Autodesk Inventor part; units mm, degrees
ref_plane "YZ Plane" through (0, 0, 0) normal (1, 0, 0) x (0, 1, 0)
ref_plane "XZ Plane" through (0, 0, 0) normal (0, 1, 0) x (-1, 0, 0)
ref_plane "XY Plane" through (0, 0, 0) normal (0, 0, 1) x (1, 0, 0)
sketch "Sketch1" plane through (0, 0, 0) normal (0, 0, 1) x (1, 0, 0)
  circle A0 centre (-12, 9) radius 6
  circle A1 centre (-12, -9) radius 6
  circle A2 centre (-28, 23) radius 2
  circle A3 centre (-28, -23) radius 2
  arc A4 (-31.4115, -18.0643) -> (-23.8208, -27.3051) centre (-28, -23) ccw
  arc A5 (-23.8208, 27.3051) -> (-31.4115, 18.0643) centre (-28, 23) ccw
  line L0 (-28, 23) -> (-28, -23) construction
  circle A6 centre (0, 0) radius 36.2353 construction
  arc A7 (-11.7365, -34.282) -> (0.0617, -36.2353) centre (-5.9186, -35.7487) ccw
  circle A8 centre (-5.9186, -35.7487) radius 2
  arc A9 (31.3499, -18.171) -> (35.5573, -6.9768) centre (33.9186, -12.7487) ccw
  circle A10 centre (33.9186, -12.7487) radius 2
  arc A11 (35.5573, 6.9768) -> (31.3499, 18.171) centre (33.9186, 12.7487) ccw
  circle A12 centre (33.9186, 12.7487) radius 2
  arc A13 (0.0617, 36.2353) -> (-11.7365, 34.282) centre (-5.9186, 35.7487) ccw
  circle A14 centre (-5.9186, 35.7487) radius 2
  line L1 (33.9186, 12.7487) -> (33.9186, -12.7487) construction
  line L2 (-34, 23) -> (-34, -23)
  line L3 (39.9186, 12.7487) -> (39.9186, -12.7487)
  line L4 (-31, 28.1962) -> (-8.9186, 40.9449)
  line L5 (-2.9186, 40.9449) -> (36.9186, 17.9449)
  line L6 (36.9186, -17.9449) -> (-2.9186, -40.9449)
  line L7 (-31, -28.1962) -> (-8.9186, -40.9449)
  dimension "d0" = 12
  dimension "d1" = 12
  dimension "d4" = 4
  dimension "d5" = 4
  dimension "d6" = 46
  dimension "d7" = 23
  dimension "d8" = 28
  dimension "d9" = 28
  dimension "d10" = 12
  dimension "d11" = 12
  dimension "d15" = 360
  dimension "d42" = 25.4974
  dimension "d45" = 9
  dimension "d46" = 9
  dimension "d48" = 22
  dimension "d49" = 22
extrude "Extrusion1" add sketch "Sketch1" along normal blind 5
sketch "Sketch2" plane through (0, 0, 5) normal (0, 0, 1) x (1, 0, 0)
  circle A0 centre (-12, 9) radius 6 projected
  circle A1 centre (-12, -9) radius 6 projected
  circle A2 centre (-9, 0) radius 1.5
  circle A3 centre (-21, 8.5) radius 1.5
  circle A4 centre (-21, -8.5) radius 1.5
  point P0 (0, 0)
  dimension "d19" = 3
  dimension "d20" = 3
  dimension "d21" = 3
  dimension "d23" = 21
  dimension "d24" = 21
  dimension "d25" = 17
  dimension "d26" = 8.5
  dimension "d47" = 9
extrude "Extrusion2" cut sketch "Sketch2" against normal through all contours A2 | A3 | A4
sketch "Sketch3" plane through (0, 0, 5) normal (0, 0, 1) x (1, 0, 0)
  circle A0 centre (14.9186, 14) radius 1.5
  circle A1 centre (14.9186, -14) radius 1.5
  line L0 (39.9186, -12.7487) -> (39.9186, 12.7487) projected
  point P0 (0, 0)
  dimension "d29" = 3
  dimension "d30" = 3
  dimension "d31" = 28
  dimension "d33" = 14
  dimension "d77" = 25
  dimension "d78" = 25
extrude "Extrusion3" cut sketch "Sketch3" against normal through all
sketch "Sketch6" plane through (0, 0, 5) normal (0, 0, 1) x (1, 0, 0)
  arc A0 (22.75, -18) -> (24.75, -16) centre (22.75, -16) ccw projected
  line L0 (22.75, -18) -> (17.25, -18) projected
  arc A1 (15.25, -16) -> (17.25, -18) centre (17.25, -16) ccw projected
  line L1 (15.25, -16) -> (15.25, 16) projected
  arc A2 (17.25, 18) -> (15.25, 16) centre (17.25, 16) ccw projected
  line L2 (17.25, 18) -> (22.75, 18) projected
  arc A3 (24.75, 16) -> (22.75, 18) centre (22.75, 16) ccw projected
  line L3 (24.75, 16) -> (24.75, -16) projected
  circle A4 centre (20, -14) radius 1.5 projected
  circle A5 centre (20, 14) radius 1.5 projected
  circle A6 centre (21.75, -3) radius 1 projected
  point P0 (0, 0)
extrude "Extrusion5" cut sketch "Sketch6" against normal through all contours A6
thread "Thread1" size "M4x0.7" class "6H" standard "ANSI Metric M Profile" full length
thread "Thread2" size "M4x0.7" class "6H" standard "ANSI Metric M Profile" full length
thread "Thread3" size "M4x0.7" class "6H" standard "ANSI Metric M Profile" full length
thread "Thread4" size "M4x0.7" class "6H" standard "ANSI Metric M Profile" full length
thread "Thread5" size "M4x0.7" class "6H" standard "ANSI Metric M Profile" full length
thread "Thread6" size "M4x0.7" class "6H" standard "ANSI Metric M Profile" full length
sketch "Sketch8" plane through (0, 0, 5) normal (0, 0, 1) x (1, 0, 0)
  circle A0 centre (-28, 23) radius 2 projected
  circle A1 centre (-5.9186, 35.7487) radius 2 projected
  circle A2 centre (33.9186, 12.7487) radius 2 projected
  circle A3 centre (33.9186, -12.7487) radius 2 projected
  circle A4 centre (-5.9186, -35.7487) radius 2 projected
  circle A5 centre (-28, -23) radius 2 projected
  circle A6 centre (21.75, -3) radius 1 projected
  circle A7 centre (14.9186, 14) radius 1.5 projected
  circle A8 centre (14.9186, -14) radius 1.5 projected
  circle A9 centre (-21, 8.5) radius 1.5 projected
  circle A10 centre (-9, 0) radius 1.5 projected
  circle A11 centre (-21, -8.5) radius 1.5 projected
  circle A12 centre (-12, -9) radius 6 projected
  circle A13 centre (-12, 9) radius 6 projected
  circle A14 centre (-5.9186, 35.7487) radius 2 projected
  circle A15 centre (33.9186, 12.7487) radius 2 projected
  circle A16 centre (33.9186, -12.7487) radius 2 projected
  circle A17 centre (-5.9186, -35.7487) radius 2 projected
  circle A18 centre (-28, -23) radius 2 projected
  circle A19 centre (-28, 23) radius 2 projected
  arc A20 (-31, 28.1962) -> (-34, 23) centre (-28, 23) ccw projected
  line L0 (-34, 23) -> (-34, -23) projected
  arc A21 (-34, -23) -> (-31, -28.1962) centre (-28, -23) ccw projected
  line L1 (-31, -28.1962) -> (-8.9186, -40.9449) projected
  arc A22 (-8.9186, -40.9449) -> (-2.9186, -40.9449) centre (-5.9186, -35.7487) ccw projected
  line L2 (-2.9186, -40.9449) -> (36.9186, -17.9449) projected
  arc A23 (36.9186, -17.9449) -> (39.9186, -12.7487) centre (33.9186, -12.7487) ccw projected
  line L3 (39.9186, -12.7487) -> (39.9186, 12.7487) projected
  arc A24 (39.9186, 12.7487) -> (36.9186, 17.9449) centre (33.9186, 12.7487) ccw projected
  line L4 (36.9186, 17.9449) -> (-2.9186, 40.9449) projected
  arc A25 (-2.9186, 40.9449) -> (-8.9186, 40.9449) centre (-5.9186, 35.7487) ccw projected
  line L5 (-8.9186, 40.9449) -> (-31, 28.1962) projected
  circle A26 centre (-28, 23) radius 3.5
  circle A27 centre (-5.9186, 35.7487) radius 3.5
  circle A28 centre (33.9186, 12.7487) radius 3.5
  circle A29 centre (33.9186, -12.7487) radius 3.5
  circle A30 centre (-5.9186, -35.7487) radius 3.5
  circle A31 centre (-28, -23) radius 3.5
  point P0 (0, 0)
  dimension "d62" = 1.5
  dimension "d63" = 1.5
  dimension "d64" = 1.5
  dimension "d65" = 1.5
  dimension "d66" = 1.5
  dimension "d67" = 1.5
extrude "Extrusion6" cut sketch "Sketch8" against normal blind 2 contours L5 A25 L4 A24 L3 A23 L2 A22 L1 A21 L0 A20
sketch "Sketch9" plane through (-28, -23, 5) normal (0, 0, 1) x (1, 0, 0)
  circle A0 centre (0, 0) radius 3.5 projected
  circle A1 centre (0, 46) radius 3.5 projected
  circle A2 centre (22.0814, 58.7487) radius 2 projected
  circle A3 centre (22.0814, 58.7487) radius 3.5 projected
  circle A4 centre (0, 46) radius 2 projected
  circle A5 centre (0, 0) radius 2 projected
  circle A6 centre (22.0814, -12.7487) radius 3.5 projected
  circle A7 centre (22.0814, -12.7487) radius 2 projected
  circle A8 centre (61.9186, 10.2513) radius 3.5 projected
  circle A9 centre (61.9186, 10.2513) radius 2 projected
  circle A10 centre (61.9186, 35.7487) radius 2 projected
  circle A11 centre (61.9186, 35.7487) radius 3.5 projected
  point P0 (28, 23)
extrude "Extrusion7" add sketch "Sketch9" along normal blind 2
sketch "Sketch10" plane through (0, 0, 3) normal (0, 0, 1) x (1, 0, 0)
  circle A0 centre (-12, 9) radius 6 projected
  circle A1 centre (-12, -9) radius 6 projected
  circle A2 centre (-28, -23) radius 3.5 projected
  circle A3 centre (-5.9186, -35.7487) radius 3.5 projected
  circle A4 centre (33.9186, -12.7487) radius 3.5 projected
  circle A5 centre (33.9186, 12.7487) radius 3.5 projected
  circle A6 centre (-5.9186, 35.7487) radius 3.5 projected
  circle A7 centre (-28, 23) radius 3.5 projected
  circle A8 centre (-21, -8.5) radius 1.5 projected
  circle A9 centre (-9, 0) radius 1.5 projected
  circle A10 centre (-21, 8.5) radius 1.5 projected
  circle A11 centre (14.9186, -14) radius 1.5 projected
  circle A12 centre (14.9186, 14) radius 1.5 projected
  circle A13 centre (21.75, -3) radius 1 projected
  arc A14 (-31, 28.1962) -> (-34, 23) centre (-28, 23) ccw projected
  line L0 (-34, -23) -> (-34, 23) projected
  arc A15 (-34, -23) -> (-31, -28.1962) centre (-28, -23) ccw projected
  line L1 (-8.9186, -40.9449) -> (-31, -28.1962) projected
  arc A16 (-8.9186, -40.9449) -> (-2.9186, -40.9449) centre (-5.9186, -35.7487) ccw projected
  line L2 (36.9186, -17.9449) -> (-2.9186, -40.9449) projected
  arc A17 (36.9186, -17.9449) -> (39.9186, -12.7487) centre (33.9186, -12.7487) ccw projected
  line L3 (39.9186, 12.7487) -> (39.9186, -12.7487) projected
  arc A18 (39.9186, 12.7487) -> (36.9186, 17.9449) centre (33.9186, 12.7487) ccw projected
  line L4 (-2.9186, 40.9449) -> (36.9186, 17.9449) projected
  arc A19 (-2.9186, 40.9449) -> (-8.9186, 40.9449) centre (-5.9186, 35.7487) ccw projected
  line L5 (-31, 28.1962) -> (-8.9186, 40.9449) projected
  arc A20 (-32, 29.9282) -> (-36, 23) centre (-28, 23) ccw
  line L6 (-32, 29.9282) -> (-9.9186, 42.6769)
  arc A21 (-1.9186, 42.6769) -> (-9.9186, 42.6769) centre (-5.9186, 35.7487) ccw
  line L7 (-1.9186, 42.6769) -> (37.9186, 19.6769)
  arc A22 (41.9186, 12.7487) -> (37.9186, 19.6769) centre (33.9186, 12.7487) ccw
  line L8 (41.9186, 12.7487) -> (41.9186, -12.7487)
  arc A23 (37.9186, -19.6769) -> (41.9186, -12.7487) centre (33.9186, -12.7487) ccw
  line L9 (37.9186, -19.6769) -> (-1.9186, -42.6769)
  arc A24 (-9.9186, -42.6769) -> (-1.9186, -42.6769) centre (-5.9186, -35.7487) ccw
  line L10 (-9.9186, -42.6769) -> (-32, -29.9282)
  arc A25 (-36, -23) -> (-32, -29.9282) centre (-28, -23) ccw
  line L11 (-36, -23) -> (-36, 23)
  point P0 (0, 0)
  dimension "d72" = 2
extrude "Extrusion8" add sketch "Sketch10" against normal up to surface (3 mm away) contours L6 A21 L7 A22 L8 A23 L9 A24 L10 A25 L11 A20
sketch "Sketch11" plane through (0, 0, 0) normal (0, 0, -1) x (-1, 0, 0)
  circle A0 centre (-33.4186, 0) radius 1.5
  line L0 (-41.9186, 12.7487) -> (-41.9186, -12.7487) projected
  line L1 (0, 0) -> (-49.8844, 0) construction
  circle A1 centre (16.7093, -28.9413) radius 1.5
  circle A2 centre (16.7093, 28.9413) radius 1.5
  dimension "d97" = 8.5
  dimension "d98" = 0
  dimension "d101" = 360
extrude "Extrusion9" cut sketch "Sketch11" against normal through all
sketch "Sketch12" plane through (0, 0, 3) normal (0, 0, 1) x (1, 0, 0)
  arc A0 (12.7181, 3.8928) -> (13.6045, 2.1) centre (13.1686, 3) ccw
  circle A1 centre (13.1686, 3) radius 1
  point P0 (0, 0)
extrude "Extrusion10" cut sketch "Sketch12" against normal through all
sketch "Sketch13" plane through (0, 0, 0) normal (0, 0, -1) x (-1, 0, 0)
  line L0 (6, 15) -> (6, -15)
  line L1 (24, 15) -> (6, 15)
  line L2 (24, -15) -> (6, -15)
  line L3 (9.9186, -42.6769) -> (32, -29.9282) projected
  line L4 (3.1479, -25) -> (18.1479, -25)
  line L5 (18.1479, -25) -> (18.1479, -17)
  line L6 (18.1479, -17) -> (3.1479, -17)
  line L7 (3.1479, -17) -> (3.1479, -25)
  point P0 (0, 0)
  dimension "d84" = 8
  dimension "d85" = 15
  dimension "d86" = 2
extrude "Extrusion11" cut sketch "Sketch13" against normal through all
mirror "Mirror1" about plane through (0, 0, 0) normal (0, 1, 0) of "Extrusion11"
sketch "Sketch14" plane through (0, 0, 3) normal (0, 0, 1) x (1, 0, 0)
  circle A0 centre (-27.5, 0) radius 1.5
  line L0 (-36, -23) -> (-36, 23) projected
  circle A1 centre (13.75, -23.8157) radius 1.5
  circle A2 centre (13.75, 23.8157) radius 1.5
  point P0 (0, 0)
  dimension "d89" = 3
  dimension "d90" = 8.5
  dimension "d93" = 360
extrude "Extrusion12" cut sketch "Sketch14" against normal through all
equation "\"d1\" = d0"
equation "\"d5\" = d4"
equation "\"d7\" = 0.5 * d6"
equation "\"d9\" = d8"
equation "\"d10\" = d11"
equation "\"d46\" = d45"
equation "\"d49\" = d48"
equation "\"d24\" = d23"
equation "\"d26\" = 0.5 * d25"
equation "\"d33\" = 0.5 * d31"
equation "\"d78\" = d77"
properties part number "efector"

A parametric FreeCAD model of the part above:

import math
import FreeCAD as App
import Part
import Sketcher
from FreeCAD import Vector
Q = App.Units.Quantity


def add_polygon(sketch, points):
    """Adds a closed chain of lines whose ends are joined by coincident constraints."""
    first, n = sketch.GeometryCount, len(points)
    for a, b in zip(points, points[1:] + points[:1]):
        sketch.addGeometry(Part.LineSegment(App.Vector(*a, 0), App.Vector(*b, 0)), False)
    for i in range(n):
        sketch.addConstraint(Sketcher.Constraint("Coincident", first + i, 2, first + (i + 1) % n, 1))

doc = App.newDocument("Part")
body = doc.addObject("PartDesign::Body", "Body")

sketch1 = body.newObject("Sketcher::SketchObject", "Sketch")
sketch1.AttachmentSupport = (doc.getObject("XY_Plane"), [""])
sketch1.MapMode = "FlatFace"
sketch1.addGeometry([
    Part.LineSegment(Vector(-34, 23, 0), Vector(-34, -23, 0)),
    Part.ArcOfCircle(Part.Circle(Vector(-28, -23, 0), Vector(0, 0, 1), 6), math.radians(180), math.radians(240)),
    Part.LineSegment(Vector(-31, -28.2, 0), Vector(-8.9, -40.9, 0)),
    Part.ArcOfCircle(Part.Circle(Vector(-5.9, -35.7, 0), Vector(0, 0, 1), 6), math.radians(-120), math.radians(-60)),
    Part.LineSegment(Vector(-2.9, -40.9, 0), Vector(36.9, -17.9, 0)),
    Part.ArcOfCircle(Part.Circle(Vector(33.9, -12.7, 0), Vector(0, 0, 1), 6), math.radians(-60), math.radians(0)),
    Part.LineSegment(Vector(39.9, -12.7, 0), Vector(39.9, 12.7, 0)),
    Part.ArcOfCircle(Part.Circle(Vector(33.9, 12.7, 0), Vector(0, 0, 1), 6), math.radians(0), math.radians(60)),
    Part.LineSegment(Vector(36.9, 17.9, 0), Vector(-2.9, 40.9, 0)),
    Part.ArcOfCircle(Part.Circle(Vector(-5.9, 35.7, 0), Vector(0, 0, 1), 6), math.radians(60), math.radians(120)),
    Part.LineSegment(Vector(-8.9, 40.9, 0), Vector(-31, 28.2, 0)),
    Part.ArcOfCircle(Part.Circle(Vector(-28, 23, 0), Vector(0, 0, 1), 6), math.radians(120), math.radians(180)),
    Part.Circle(Vector(-28, -23, 0), Vector(0, 0, 1), 2),
    Part.Circle(Vector(-5.9, -35.7, 0), Vector(0, 0, 1), 2),
    Part.Circle(Vector(-12, -9, 0), Vector(0, 0, 1), 6),
    Part.Circle(Vector(33.9, -12.7, 0), Vector(0, 0, 1), 2),
    Part.Circle(Vector(-12, 9, 0), Vector(0, 0, 1), 6),
    Part.Circle(Vector(-28, 23, 0), Vector(0, 0, 1), 2),
    Part.Circle(Vector(-5.9, 35.7, 0), Vector(0, 0, 1), 2),
    Part.Circle(Vector(33.9, 12.7, 0), Vector(0, 0, 1), 2),
], False)
sketch1.addConstraint([
    Sketcher.Constraint("Tangent", 0, 2, 1, 1),
    Sketcher.Constraint("Tangent", 1, 2, 2, 1),
    Sketcher.Constraint("Tangent", 2, 2, 3, 1),
    Sketcher.Constraint("Tangent", 3, 2, 4, 1),
    Sketcher.Constraint("Tangent", 4, 2, 5, 1),
    Sketcher.Constraint("Tangent", 5, 2, 6, 1),
    Sketcher.Constraint("Tangent", 6, 2, 7, 1),
    Sketcher.Constraint("Tangent", 7, 2, 8, 1),
    Sketcher.Constraint("Tangent", 8, 2, 9, 1),
    Sketcher.Constraint("Tangent", 9, 2, 10, 1),
    Sketcher.Constraint("Tangent", 10, 2, 11, 1),
    Sketcher.Constraint("Tangent", 11, 2, 0, 1),
    Sketcher.Constraint("Vertical", 0),
    Sketcher.Constraint("Vertical", 6),
    Sketcher.Constraint("Coincident", 12, 3, 1, 3),
    Sketcher.Constraint("Coincident", 13, 3, 3, 3),
    Sketcher.Constraint("Coincident", 15, 3, 5, 3),
    Sketcher.Constraint("Coincident", 17, 3, 11, 3),
    Sketcher.Constraint("Coincident", 18, 3, 9, 3),
    Sketcher.Constraint("Coincident", 19, 3, 7, 3),
    Sketcher.Constraint("Equal", 1, 3),
    Sketcher.Constraint("Equal", 3, 5),
    Sketcher.Constraint("Equal", 5, 7),
    Sketcher.Constraint("Equal", 7, 9),
    Sketcher.Constraint("Equal", 9, 11),
    Sketcher.Constraint("Equal", 12, 13),
    Sketcher.Constraint("Equal", 11, 14),
    Sketcher.Constraint("Equal", 13, 15),
    Sketcher.Constraint("Equal", 14, 16),
    Sketcher.Constraint("Equal", 15, 17),
    Sketcher.Constraint("Equal", 17, 18),
    Sketcher.Constraint("Equal", 18, 19),
    Sketcher.Constraint("Symmetric", 3, 3, 9, 3, -1),
    Sketcher.Constraint("Symmetric", 14, 3, 16, 3, -1),
    Sketcher.Constraint("Parallel", 2, 8),
    Sketcher.Constraint("Parallel", 4, 10),
    Sketcher.Constraint("Horizontal", 2, 2, 3, 2),
    Sketcher.Constraint("Diameter", 12, Q("4 mm")),
    Sketcher.Constraint("Diameter", 14, Q("12 mm")),
    Sketcher.Constraint("DistanceY", 0, 2, 0, 1, Q("46 mm")),
    Sketcher.Constraint("Distance", 4, Q("46 mm")),
    Sketcher.Constraint("DistanceX", 1, 3, -1, 1, Q("28 mm")),
    Sketcher.Constraint("DistanceX", 14, 3, -1, 1, Q("12 mm")),
    Sketcher.Constraint("DistanceY", 14, 3, -1, 1, Q("9 mm")),
    Sketcher.Constraint("DistanceY", 3, 3, 5, 3, Q("23 mm")),
    Sketcher.Constraint("DistanceY", 6, 1, 6, 2, Q("25.4974 mm")),
])
pad1 = body.newObject("PartDesign::Pad", "Pad")
pad1.Profile = sketch1
pad1.Length = 5

sketch2 = body.newObject("Sketcher::SketchObject", "Sketch001")
sketch2.AttachmentSupport = (doc.getObject("XY_Plane"), [""])
sketch2.MapMode = "FlatFace"
sketch2.AttachmentOffset = App.Placement(Vector(0, 0, 5), App.Rotation())
sketch2.addGeometry([
    Part.Circle(Vector(-9, 0, 0), Vector(0, 0, 1), 1.5),
    Part.Circle(Vector(-21, 8.5, 0), Vector(0, 0, 1), 1.5),
    Part.Circle(Vector(-21, -8.5, 0), Vector(0, 0, 1), 1.5),
], False)
sketch2.addConstraint([
    Sketcher.Constraint("Equal", 0, 1),
    Sketcher.Constraint("Equal", 1, 2),
    Sketcher.Constraint("Symmetric", 1, 3, 2, 3, -1),
    Sketcher.Constraint("PointOnObject", 0, 3, -1),
    Sketcher.Constraint("Diameter", 0, Q("3 mm")),
    Sketcher.Constraint("DistanceX", 0, 3, -1, 1, Q("9 mm")),
    Sketcher.Constraint("DistanceX", 1, 3, -1, 1, Q("21 mm")),
    Sketcher.Constraint("DistanceY", 2, 3, 1, 3, Q("17 mm")),
])
pocket1 = body.newObject("PartDesign::Pocket", "Pocket")
pocket1.Profile = sketch2
pocket1.Type = "ThroughAll"

sketch3 = body.newObject("Sketcher::SketchObject", "Sketch002")
sketch3.AttachmentSupport = (doc.getObject("XY_Plane"), [""])
sketch3.MapMode = "FlatFace"
sketch3.AttachmentOffset = App.Placement(Vector(0, 0, 5), App.Rotation())
sketch3.addGeometry([
    Part.Circle(Vector(14.9, 14, 0), Vector(0, 0, 1), 1.5),
    Part.Circle(Vector(14.9, -14, 0), Vector(0, 0, 1), 1.5),
], False)
sketch3.addConstraint([
    Sketcher.Constraint("Equal", 0, 1),
    Sketcher.Constraint("Symmetric", 0, 3, 1, 3, -1),
    Sketcher.Constraint("Diameter", 0, Q("3 mm")),
    Sketcher.Constraint("DistanceY", -1, 1, 0, 3, Q("14 mm")),
    Sketcher.Constraint("DistanceX", -1, 1, 0, 3, Q("14.9186 mm")),
])
pocket2 = body.newObject("PartDesign::Pocket", "Pocket001")
pocket2.Profile = sketch3
pocket2.Type = "ThroughAll"

sketch4 = body.newObject("Sketcher::SketchObject", "Sketch003")
sketch4.AttachmentSupport = (doc.getObject("XY_Plane"), [""])
sketch4.MapMode = "FlatFace"
sketch4.AttachmentOffset = App.Placement(Vector(0, 0, 5), App.Rotation())
sketch4.addGeometry(Part.Circle(Vector(21.8, -3, 0), Vector(0, 0, 1), 1), False)
sketch4.addConstraint([
    Sketcher.Constraint("Diameter", 0, Q("2 mm")),
    Sketcher.Constraint("DistanceY", 0, 3, -1, 1, Q("3 mm")),
    Sketcher.Constraint("DistanceX", -1, 1, 0, 3, Q("21.75 mm")),
])
pocket3 = body.newObject("PartDesign::Pocket", "Pocket002")
pocket3.Profile = sketch4
pocket3.Type = "ThroughAll"

sketch5 = body.newObject("Sketcher::SketchObject", "Sketch004")
sketch5.AttachmentSupport = (doc.getObject("XY_Plane"), [""])
sketch5.MapMode = "FlatFace"
sketch5.AttachmentOffset = App.Placement(Vector(0, 0, 5), App.Rotation())
sketch5.addGeometry([
    Part.LineSegment(Vector(-8.9, 40.9, 0), Vector(-31, 28.2, 0)),
    Part.ArcOfCircle(Part.Circle(Vector(-28, 23, 0), Vector(0, 0, 1), 6), math.radians(120), math.radians(180)),
    Part.LineSegment(Vector(-34, 23, 0), Vector(-34, -23, 0)),
    Part.ArcOfCircle(Part.Circle(Vector(-28, -23, 0), Vector(0, 0, 1), 6), math.radians(180), math.radians(240)),
    Part.LineSegment(Vector(-31, -28.2, 0), Vector(-8.9, -40.9, 0)),
    Part.ArcOfCircle(Part.Circle(Vector(-5.9, -35.7, 0), Vector(0, 0, 1), 6), math.radians(-120), math.radians(-60)),
    Part.LineSegment(Vector(-2.9, -40.9, 0), Vector(36.9, -17.9, 0)),
    Part.ArcOfCircle(Part.Circle(Vector(33.9, -12.7, 0), Vector(0, 0, 1), 6), math.radians(-60), math.radians(0)),
    Part.LineSegment(Vector(39.9, -12.7, 0), Vector(39.9, 12.7, 0)),
    Part.ArcOfCircle(Part.Circle(Vector(33.9, 12.7, 0), Vector(0, 0, 1), 6), math.radians(0), math.radians(60)),
    Part.LineSegment(Vector(36.9, 17.9, 0), Vector(-2.9, 40.9, 0)),
    Part.ArcOfCircle(Part.Circle(Vector(-5.9, 35.7, 0), Vector(0, 0, 1), 6), math.radians(60), math.radians(120)),
    Part.Circle(Vector(-28, -23, 0), Vector(0, 0, 1), 3.5),
    Part.Circle(Vector(-5.9, -35.7, 0), Vector(0, 0, 1), 3.5),
    Part.Circle(Vector(-21, -8.5, 0), Vector(0, 0, 1), 1.5),
    Part.Circle(Vector(-12, -9, 0), Vector(0, 0, 1), 6),
    Part.Circle(Vector(14.9, -14, 0), Vector(0, 0, 1), 1.5),
    Part.Circle(Vector(33.9, -12.7, 0), Vector(0, 0, 1), 3.5),
    Part.Circle(Vector(21.8, -3, 0), Vector(0, 0, 1), 1),
    Part.Circle(Vector(-21, 8.5, 0), Vector(0, 0, 1), 1.5),
    Part.Circle(Vector(-9, 0, 0), Vector(0, 0, 1), 1.5),
    Part.Circle(Vector(-12, 9, 0), Vector(0, 0, 1), 6),
    Part.Circle(Vector(-28, 23, 0), Vector(0, 0, 1), 3.5),
    Part.Circle(Vector(-5.9, 35.7, 0), Vector(0, 0, 1), 3.5),
    Part.Circle(Vector(14.9, 14, 0), Vector(0, 0, 1), 1.5),
    Part.Circle(Vector(33.9, 12.7, 0), Vector(0, 0, 1), 3.5),
], False)
sketch5.addConstraint([
    Sketcher.Constraint("Tangent", 0, 2, 1, 1),
    Sketcher.Constraint("Tangent", 1, 2, 2, 1),
    Sketcher.Constraint("Tangent", 2, 2, 3, 1),
    Sketcher.Constraint("Tangent", 3, 2, 4, 1),
    Sketcher.Constraint("Tangent", 4, 2, 5, 1),
    Sketcher.Constraint("Tangent", 5, 2, 6, 1),
    Sketcher.Constraint("Tangent", 6, 2, 7, 1),
    Sketcher.Constraint("Tangent", 7, 2, 8, 1),
    Sketcher.Constraint("Tangent", 8, 2, 9, 1),
    Sketcher.Constraint("Tangent", 9, 2, 10, 1),
    Sketcher.Constraint("Tangent", 10, 2, 11, 1),
    Sketcher.Constraint("Tangent", 11, 2, 0, 1),
    Sketcher.Constraint("Vertical", 2),
    Sketcher.Constraint("Vertical", 8),
    Sketcher.Constraint("Coincident", 12, 3, 3, 3),
    Sketcher.Constraint("Coincident", 13, 3, 5, 3),
    Sketcher.Constraint("Coincident", 17, 3, 7, 3),
    Sketcher.Constraint("Coincident", 22, 3, 1, 3),
    Sketcher.Constraint("Coincident", 23, 3, 11, 3),
    Sketcher.Constraint("Coincident", 25, 3, 9, 3),
    Sketcher.Constraint("Equal", 1, 3),
    Sketcher.Constraint("Equal", 3, 5),
    Sketcher.Constraint("Equal", 5, 7),
    Sketcher.Constraint("Equal", 7, 9),
    Sketcher.Constraint("Equal", 9, 11),
    Sketcher.Constraint("Equal", 12, 13),
    Sketcher.Constraint("Equal", 11, 15),
    Sketcher.Constraint("Equal", 14, 16),
    Sketcher.Constraint("Equal", 13, 17),
    Sketcher.Constraint("Equal", 16, 19),
    Sketcher.Constraint("Equal", 19, 20),
    Sketcher.Constraint("Equal", 15, 21),
    Sketcher.Constraint("Equal", 17, 22),
    Sketcher.Constraint("Equal", 22, 23),
    Sketcher.Constraint("Equal", 20, 24),
    Sketcher.Constraint("Equal", 23, 25),
    Sketcher.Constraint("Symmetric", 5, 3, 11, 3, -1),
    Sketcher.Constraint("Symmetric", 14, 3, 19, 3, -1),
    Sketcher.Constraint("Symmetric", 15, 3, 21, 3, -1),
    Sketcher.Constraint("Symmetric", 16, 3, 24, 3, -1),
    Sketcher.Constraint("PointOnObject", 20, 3, -1),
    Sketcher.Constraint("Parallel", 0, 6),
    Sketcher.Constraint("Parallel", 4, 10),
    Sketcher.Constraint("Horizontal", 4, 2, 5, 2),
    Sketcher.Constraint("Diameter", 14, Q("3 mm")),
    Sketcher.Constraint("Diameter", 12, Q("7 mm")),
    Sketcher.Constraint("Diameter", 15, Q("12 mm")),
    Sketcher.Constraint("Diameter", 18, Q("2 mm")),
    Sketcher.Constraint("DistanceY", 2, 2, 2, 1, Q("46 mm")),
    Sketcher.Constraint("Angle", 0, Q("-150 deg")),
    Sketcher.Constraint("Distance", 6, Q("46 mm")),
    Sketcher.Constraint("DistanceX", 1, 3, -1, 1, Q("28 mm")),
    Sketcher.Constraint("DistanceX", 14, 3, -1, 1, Q("21 mm")),
    Sketcher.Constraint("DistanceX", 15, 3, -1, 1, Q("12 mm")),
    Sketcher.Constraint("DistanceY", 15, 3, -1, 1, Q("9 mm")),
    Sketcher.Constraint("DistanceY", 16, 3, -1, 1, Q("14 mm")),
    Sketcher.Constraint("DistanceY", 18, 3, -1, 1, Q("3 mm")),
    Sketcher.Constraint("DistanceX", 20, 3, -1, 1, Q("9 mm")),
    Sketcher.Constraint("DistanceX", 16, 3, 7, 3, Q("19 mm")),
    Sketcher.Constraint("DistanceY", 14, 3, 19, 3, Q("17 mm")),
    Sketcher.Constraint("DistanceX", -1, 1, 18, 3, Q("21.75 mm")),
    Sketcher.Constraint("DistanceY", 8, 1, 8, 2, Q("25.4974 mm")),
])
pocket4 = body.newObject("PartDesign::Pocket", "Pocket003")
pocket4.Profile = sketch5
pocket4.Length = 2

sketch6 = body.newObject("Sketcher::SketchObject", "Sketch005")
sketch6.AttachmentSupport = (doc.getObject("XY_Plane"), [""])
sketch6.MapMode = "FlatFace"
sketch6.AttachmentOffset = App.Placement(Vector(0, 0, 5), App.Rotation())
sketch6.addGeometry([
    Part.Circle(Vector(-28, -23, 0), Vector(0, 0, 1), 3.5),
    Part.Circle(Vector(-28, -23, 0), Vector(0, 0, 1), 2),
    Part.Circle(Vector(-28, 23, 0), Vector(0, 0, 1), 3.5),
    Part.Circle(Vector(-28, 23, 0), Vector(0, 0, 1), 2),
    Part.Circle(Vector(-5.9, 35.7, 0), Vector(0, 0, 1), 3.5),
    Part.Circle(Vector(-5.9, 35.7, 0), Vector(0, 0, 1), 2),
    Part.Circle(Vector(-5.9, -35.7, 0), Vector(0, 0, 1), 3.5),
    Part.Circle(Vector(-5.9, -35.7, 0), Vector(0, 0, 1), 2),
    Part.Circle(Vector(33.9, -12.7, 0), Vector(0, 0, 1), 3.5),
    Part.Circle(Vector(33.9, -12.7, 0), Vector(0, 0, 1), 2),
    Part.Circle(Vector(33.9, 12.7, 0), Vector(0, 0, 1), 3.5),
    Part.Circle(Vector(33.9, 12.7, 0), Vector(0, 0, 1), 2),
], False)
sketch6.addConstraint([
    Sketcher.Constraint("Coincident", 1, 3, 0, 3),
    Sketcher.Constraint("Coincident", 3, 3, 2, 3),
    Sketcher.Constraint("Coincident", 5, 3, 4, 3),
    Sketcher.Constraint("Coincident", 7, 3, 6, 3),
    Sketcher.Constraint("Coincident", 9, 3, 8, 3),
    Sketcher.Constraint("Coincident", 11, 3, 10, 3),
    Sketcher.Constraint("Equal", 0, 2),
    Sketcher.Constraint("Equal", 1, 3),
    Sketcher.Constraint("Equal", 2, 4),
    Sketcher.Constraint("Equal", 3, 5),
    Sketcher.Constraint("Equal", 4, 6),
    Sketcher.Constraint("Equal", 5, 7),
    Sketcher.Constraint("Equal", 6, 8),
    Sketcher.Constraint("Equal", 7, 9),
    Sketcher.Constraint("Equal", 8, 10),
    Sketcher.Constraint("Equal", 9, 11),
    Sketcher.Constraint("Symmetric", 0, 3, 2, 3, -1),
    Sketcher.Constraint("Symmetric", 4, 3, 6, 3, -1),
    Sketcher.Constraint("Symmetric", 8, 3, 10, 3, -1),
    Sketcher.Constraint("Diameter", 0, Q("7 mm")),
    Sketcher.Constraint("Diameter", 1, Q("4 mm")),
    Sketcher.Constraint("DistanceX", 0, 3, -1, 1, Q("28 mm")),
    Sketcher.Constraint("DistanceY", 0, 3, -1, 1, Q("23 mm")),
    Sketcher.Constraint("DistanceY", 6, 3, 8, 3, Q("23 mm")),
    Sketcher.Constraint("DistanceX", 4, 3, -1, 1, Q("5.9186 mm")),
    Sketcher.Constraint("DistanceY", -1, 1, 4, 3, Q("35.7487 mm")),
    Sketcher.Constraint("DistanceX", -1, 1, 8, 3, Q("33.9186 mm")),
])
pad2 = body.newObject("PartDesign::Pad", "Pad001")
pad2.Profile = sketch6
pad2.Length = 2

sketch7 = body.newObject("Sketcher::SketchObject", "Sketch006")
sketch7.AttachmentSupport = (doc.getObject("XY_Plane"), [""])
sketch7.MapMode = "FlatFace"
sketch7.AttachmentOffset = App.Placement(Vector(0, 0, 3), App.Rotation())
sketch7.addGeometry([
    Part.LineSegment(Vector(-10, 43, 0), Vector(-32, 30, 0)),
    Part.ArcOfCircle(Part.Circle(Vector(-28, 23, 0), Vector(0, 0, 1), 8), math.radians(120), math.radians(180)),
    Part.LineSegment(Vector(-36, 23, 0), Vector(-36, -23, 0)),
    Part.ArcOfCircle(Part.Circle(Vector(-28, -23, 0), Vector(0, 0, 1), 8), math.radians(180), math.radians(240)),
    Part.LineSegment(Vector(-32, -30, 0), Vector(-10, -43, 0)),
    Part.ArcOfCircle(Part.Circle(Vector(-6, -36, 0), Vector(0, 0, 1), 8), math.radians(-120), math.radians(-60)),
    Part.LineSegment(Vector(-2, -43, 0), Vector(38, -20, 0)),
    Part.ArcOfCircle(Part.Circle(Vector(34, -13, 0), Vector(0, 0, 1), 8), math.radians(-60), math.radians(0)),
    Part.LineSegment(Vector(42, -13, 0), Vector(42, 13, 0)),
    Part.ArcOfCircle(Part.Circle(Vector(34, 13, 0), Vector(0, 0, 1), 8), math.radians(0), math.radians(60)),
    Part.LineSegment(Vector(38, 20, 0), Vector(-2, 43, 0)),
    Part.ArcOfCircle(Part.Circle(Vector(-6, 36, 0), Vector(0, 0, 1), 8), math.radians(60), math.radians(120)),
    Part.ArcOfCircle(Part.Circle(Vector(-28, 23, 0), Vector(0, 0, 1), 6), math.radians(120), math.radians(180)),
    Part.LineSegment(Vector(-31, 28, 0), Vector(-9, 41, 0)),
    Part.ArcOfCircle(Part.Circle(Vector(-6, 36, 0), Vector(0, 0, 1), 6), math.radians(60), math.radians(120)),
    Part.LineSegment(Vector(-3, 41, 0), Vector(37, 18, 0)),
    Part.ArcOfCircle(Part.Circle(Vector(34, 13, 0), Vector(0, 0, 1), 6), math.radians(0), math.radians(60)),
    Part.LineSegment(Vector(40, 13, 0), Vector(40, -13, 0)),
    Part.ArcOfCircle(Part.Circle(Vector(34, -13, 0), Vector(0, 0, 1), 6), math.radians(-60), math.radians(0)),
    Part.LineSegment(Vector(37, -18, 0), Vector(-3, -41, 0)),
    Part.ArcOfCircle(Part.Circle(Vector(-6, -36, 0), Vector(0, 0, 1), 6), math.radians(-120), math.radians(-60)),
    Part.LineSegment(Vector(-9, -41, 0), Vector(-31, -28, 0)),
    Part.ArcOfCircle(Part.Circle(Vector(-28, -23, 0), Vector(0, 0, 1), 6), math.radians(180), math.radians(240)),
    Part.LineSegment(Vector(-34, -23, 0), Vector(-34, 23, 0)),
], False)
sketch7.addConstraint([
    Sketcher.Constraint("Tangent", 0, 2, 1, 1),
    Sketcher.Constraint("Tangent", 1, 2, 2, 1),
    Sketcher.Constraint("Tangent", 2, 2, 3, 1),
    Sketcher.Constraint("Tangent", 3, 2, 4, 1),
    Sketcher.Constraint("Tangent", 4, 2, 5, 1),
    Sketcher.Constraint("Tangent", 5, 2, 6, 1),
    Sketcher.Constraint("Tangent", 6, 2, 7, 1),
    Sketcher.Constraint("Tangent", 7, 2, 8, 1),
    Sketcher.Constraint("Tangent", 8, 2, 9, 1),
    Sketcher.Constraint("Tangent", 9, 2, 10, 1),
    Sketcher.Constraint("Tangent", 10, 2, 11, 1),
    Sketcher.Constraint("Tangent", 11, 2, 0, 1),
    Sketcher.Constraint("Tangent", 12, 1, 13, 1),
    Sketcher.Constraint("Tangent", 13, 2, 14, 2),
    Sketcher.Constraint("Tangent", 14, 1, 15, 1),
    Sketcher.Constraint("Tangent", 15, 2, 16, 2),
    Sketcher.Constraint("Tangent", 16, 1, 17, 1),
    Sketcher.Constraint("Tangent", 17, 2, 18, 2),
    Sketcher.Constraint("Tangent", 18, 1, 19, 1),
    Sketcher.Constraint("Tangent", 19, 2, 20, 2),
    Sketcher.Constraint("Tangent", 20, 1, 21, 1),
    Sketcher.Constraint("Tangent", 21, 2, 22, 2),
    Sketcher.Constraint("Tangent", 22, 1, 23, 1),
    Sketcher.Constraint("Tangent", 23, 2, 12, 2),
    Sketcher.Constraint("Vertical", 2),
    Sketcher.Constraint("Vertical", 8),
    Sketcher.Constraint("Vertical", 17),
    Sketcher.Constraint("Vertical", 23),
    Sketcher.Constraint("Coincident", 12, 3, 1, 3),
    Sketcher.Constraint("Coincident", 14, 3, 11, 3),
    Sketcher.Constraint("Coincident", 16, 3, 9, 3),
    Sketcher.Constraint("Coincident", 18, 3, 7, 3),
    Sketcher.Constraint("Coincident", 20, 3, 5, 3),
    Sketcher.Constraint("Coincident", 22, 3, 3, 3),
    Sketcher.Constraint("Equal", 1, 3),
    Sketcher.Constraint("Equal", 3, 5),
    Sketcher.Constraint("Equal", 5, 7),
    Sketcher.Constraint("Equal", 7, 9),
    Sketcher.Constraint("Equal", 9, 11),
    Sketcher.Constraint("Equal", 12, 14),
    Sketcher.Constraint("Equal", 14, 16),
    Sketcher.Constraint("Equal", 18, 20),
    Sketcher.Constraint("Symmetric", 5, 3, 11, 3, -1),
    Sketcher.Constraint("Parallel", 0, 6),
    Sketcher.Constraint("Parallel", 4, 10),
    Sketcher.Constraint("Horizontal", 4, 2, 5, 2),
    Sketcher.Constraint("Radius", 1, Q("8 mm")),
    Sketcher.Constraint("Radius", 12, Q("6 mm")),
    Sketcher.Constraint("DistanceX", 9, 2, 16, 1, Q("2 mm")),
    Sketcher.Constraint("DistanceY", 2, 2, 2, 1, Q("46 mm")),
    Sketcher.Constraint("Distance", 6, Q("46 mm")),
    Sketcher.Constraint("DistanceX", 1, 3, -1, 1, Q("28 mm")),
    Sketcher.Constraint("DistanceY", 8, 1, 8, 2, Q("25.4974 mm")),
])
pad3 = body.newObject("PartDesign::Pad", "Pad002")
pad3.Profile = sketch7
pad3.Length = 3
pad3.Reversed = True

sketch8 = body.newObject("Sketcher::SketchObject", "Sketch007")
sketch8.AttachmentSupport = (doc.getObject("XY_Plane"), [""])
sketch8.MapMode = "FlatFace"
sketch8.addGeometry([
    Part.Circle(Vector(33.4, 0, 0), Vector(0, 0, 1), 1.5),
    Part.Circle(Vector(-16.7, -28.9, 0), Vector(0, 0, 1), 1.5),
    Part.Circle(Vector(-16.7, 28.9, 0), Vector(0, 0, 1), 1.5),
], False)
sketch8.addConstraint([
    Sketcher.Constraint("Equal", 0, 1),
    Sketcher.Constraint("Equal", 1, 2),
    Sketcher.Constraint("Symmetric", 1, 3, 2, 3, -1),
    Sketcher.Constraint("PointOnObject", 0, 3, -1),
    Sketcher.Constraint("Diameter", 0, Q("3 mm")),
    Sketcher.Constraint("DistanceX", 1, 3, 0, 3, Q("50.128 mm")),
    Sketcher.Constraint("DistanceX", -1, 1, 0, 3, Q("33.4186 mm")),
    Sketcher.Constraint("DistanceY", 1, 3, -1, 1, Q("28.9413 mm")),
])
pocket5 = body.newObject("PartDesign::Pocket", "Pocket004")
pocket5.Profile = sketch8
pocket5.Type = "ThroughAll"
pocket5.Reversed = True

sketch9 = body.newObject("Sketcher::SketchObject", "Sketch008")
sketch9.AttachmentSupport = (doc.getObject("XY_Plane"), [""])
sketch9.MapMode = "FlatFace"
sketch9.AttachmentOffset = App.Placement(Vector(0, 0, 3), App.Rotation())
sketch9.addGeometry([
    Part.ArcOfCircle(Part.Circle(Vector(13.2, 3, 0), Vector(0, 0, 1), 1), math.radians(-64), math.radians(117)),
    Part.ArcOfCircle(Part.Circle(Vector(13.2, 3, 0), Vector(0, 0, 1), 1), math.radians(117), math.radians(296)),
], False)
sketch9.addConstraint([
    Sketcher.Constraint("Tangent", 0, 1, 1, 2),
    Sketcher.Constraint("Coincident", 1, 1, 0, 2),
    Sketcher.Constraint("Radius", 0, Q("1 mm")),
    Sketcher.Constraint("DistanceY", -1, 1, 0, 3, Q("3 mm")),
    Sketcher.Constraint("DistanceY", -1, 1, 0, 1, Q("2.1 mm")),
    Sketcher.Constraint("DistanceX", -1, 1, 1, 1, Q("12.718 mm")),
    Sketcher.Constraint("DistanceX", -1, 1, 0, 3, Q("13.1686 mm")),
])
pocket6 = body.newObject("PartDesign::Pocket", "Pocket005")
pocket6.Profile = sketch9
pocket6.Type = "ThroughAll"

sketch10 = body.newObject("Sketcher::SketchObject", "Sketch009")
sketch10.AttachmentSupport = (doc.getObject("XY_Plane"), [""])
sketch10.MapMode = "FlatFace"
add_polygon(sketch10, [(-3, -17), (-3, -25), (-18, -25), (-18, -17)])
sketch10.addConstraint([
    Sketcher.Constraint("Vertical", 0),
    Sketcher.Constraint("Horizontal", 1),
    Sketcher.Constraint("Vertical", 2),
    Sketcher.Constraint("Horizontal", 3),
    Sketcher.Constraint("DistanceX", 1, 2, 1, 1, Q("15 mm")),
    Sketcher.Constraint("DistanceY", 0, 2, 0, 1, Q("8 mm")),
    Sketcher.Constraint("DistanceY", 0, 2, -1, 1, Q("25 mm")),
    Sketcher.Constraint("DistanceX", 0, 2, -1, 1, Q("3.148 mm")),
])
pocket7 = body.newObject("PartDesign::Pocket", "Pocket006")
pocket7.Profile = sketch10
pocket7.Type = "ThroughAll"
pocket7.Reversed = True
doc.recompute()

mirrored = body.newObject("PartDesign::Mirrored", "Mirrored")
mirrored.Originals = [pocket7]
mirrored.MirrorPlane = (doc.getObject("XZ_Plane"), [""])
body.Tip = mirrored

sketch11 = body.newObject("Sketcher::SketchObject", "Sketch010")
sketch11.AttachmentSupport = (doc.getObject("XY_Plane"), [""])
sketch11.MapMode = "FlatFace"
sketch11.AttachmentOffset = App.Placement(Vector(0, 0, 3), App.Rotation())
sketch11.addGeometry([
    Part.Circle(Vector(-27.5, 0, 0), Vector(0, 0, 1), 1.5),
    Part.Circle(Vector(13.8, -23.8, 0), Vector(0, 0, 1), 1.5),
    Part.Circle(Vector(13.8, 23.8, 0), Vector(0, 0, 1), 1.5),
], False)
sketch11.addConstraint([
    Sketcher.Constraint("Equal", 0, 1),
    Sketcher.Constraint("Equal", 1, 2),
    Sketcher.Constraint("Symmetric", 1, 3, 2, 3, -1),
    Sketcher.Constraint("PointOnObject", 0, 3, -1),
    Sketcher.Constraint("Diameter", 0, Q("3 mm")),
    Sketcher.Constraint("DistanceX", 0, 3, -1, 1, Q("27.5 mm")),
    Sketcher.Constraint("DistanceX", -1, 1, 1, 3, Q("13.75 mm")),
    Sketcher.Constraint("DistanceY", 1, 3, -1, 1, Q("23.8157 mm")),
])
pocket8 = body.newObject("PartDesign::Pocket", "Pocket007")
pocket8.Profile = sketch11
pocket8.Type = "ThroughAll"

doc.recompute()
